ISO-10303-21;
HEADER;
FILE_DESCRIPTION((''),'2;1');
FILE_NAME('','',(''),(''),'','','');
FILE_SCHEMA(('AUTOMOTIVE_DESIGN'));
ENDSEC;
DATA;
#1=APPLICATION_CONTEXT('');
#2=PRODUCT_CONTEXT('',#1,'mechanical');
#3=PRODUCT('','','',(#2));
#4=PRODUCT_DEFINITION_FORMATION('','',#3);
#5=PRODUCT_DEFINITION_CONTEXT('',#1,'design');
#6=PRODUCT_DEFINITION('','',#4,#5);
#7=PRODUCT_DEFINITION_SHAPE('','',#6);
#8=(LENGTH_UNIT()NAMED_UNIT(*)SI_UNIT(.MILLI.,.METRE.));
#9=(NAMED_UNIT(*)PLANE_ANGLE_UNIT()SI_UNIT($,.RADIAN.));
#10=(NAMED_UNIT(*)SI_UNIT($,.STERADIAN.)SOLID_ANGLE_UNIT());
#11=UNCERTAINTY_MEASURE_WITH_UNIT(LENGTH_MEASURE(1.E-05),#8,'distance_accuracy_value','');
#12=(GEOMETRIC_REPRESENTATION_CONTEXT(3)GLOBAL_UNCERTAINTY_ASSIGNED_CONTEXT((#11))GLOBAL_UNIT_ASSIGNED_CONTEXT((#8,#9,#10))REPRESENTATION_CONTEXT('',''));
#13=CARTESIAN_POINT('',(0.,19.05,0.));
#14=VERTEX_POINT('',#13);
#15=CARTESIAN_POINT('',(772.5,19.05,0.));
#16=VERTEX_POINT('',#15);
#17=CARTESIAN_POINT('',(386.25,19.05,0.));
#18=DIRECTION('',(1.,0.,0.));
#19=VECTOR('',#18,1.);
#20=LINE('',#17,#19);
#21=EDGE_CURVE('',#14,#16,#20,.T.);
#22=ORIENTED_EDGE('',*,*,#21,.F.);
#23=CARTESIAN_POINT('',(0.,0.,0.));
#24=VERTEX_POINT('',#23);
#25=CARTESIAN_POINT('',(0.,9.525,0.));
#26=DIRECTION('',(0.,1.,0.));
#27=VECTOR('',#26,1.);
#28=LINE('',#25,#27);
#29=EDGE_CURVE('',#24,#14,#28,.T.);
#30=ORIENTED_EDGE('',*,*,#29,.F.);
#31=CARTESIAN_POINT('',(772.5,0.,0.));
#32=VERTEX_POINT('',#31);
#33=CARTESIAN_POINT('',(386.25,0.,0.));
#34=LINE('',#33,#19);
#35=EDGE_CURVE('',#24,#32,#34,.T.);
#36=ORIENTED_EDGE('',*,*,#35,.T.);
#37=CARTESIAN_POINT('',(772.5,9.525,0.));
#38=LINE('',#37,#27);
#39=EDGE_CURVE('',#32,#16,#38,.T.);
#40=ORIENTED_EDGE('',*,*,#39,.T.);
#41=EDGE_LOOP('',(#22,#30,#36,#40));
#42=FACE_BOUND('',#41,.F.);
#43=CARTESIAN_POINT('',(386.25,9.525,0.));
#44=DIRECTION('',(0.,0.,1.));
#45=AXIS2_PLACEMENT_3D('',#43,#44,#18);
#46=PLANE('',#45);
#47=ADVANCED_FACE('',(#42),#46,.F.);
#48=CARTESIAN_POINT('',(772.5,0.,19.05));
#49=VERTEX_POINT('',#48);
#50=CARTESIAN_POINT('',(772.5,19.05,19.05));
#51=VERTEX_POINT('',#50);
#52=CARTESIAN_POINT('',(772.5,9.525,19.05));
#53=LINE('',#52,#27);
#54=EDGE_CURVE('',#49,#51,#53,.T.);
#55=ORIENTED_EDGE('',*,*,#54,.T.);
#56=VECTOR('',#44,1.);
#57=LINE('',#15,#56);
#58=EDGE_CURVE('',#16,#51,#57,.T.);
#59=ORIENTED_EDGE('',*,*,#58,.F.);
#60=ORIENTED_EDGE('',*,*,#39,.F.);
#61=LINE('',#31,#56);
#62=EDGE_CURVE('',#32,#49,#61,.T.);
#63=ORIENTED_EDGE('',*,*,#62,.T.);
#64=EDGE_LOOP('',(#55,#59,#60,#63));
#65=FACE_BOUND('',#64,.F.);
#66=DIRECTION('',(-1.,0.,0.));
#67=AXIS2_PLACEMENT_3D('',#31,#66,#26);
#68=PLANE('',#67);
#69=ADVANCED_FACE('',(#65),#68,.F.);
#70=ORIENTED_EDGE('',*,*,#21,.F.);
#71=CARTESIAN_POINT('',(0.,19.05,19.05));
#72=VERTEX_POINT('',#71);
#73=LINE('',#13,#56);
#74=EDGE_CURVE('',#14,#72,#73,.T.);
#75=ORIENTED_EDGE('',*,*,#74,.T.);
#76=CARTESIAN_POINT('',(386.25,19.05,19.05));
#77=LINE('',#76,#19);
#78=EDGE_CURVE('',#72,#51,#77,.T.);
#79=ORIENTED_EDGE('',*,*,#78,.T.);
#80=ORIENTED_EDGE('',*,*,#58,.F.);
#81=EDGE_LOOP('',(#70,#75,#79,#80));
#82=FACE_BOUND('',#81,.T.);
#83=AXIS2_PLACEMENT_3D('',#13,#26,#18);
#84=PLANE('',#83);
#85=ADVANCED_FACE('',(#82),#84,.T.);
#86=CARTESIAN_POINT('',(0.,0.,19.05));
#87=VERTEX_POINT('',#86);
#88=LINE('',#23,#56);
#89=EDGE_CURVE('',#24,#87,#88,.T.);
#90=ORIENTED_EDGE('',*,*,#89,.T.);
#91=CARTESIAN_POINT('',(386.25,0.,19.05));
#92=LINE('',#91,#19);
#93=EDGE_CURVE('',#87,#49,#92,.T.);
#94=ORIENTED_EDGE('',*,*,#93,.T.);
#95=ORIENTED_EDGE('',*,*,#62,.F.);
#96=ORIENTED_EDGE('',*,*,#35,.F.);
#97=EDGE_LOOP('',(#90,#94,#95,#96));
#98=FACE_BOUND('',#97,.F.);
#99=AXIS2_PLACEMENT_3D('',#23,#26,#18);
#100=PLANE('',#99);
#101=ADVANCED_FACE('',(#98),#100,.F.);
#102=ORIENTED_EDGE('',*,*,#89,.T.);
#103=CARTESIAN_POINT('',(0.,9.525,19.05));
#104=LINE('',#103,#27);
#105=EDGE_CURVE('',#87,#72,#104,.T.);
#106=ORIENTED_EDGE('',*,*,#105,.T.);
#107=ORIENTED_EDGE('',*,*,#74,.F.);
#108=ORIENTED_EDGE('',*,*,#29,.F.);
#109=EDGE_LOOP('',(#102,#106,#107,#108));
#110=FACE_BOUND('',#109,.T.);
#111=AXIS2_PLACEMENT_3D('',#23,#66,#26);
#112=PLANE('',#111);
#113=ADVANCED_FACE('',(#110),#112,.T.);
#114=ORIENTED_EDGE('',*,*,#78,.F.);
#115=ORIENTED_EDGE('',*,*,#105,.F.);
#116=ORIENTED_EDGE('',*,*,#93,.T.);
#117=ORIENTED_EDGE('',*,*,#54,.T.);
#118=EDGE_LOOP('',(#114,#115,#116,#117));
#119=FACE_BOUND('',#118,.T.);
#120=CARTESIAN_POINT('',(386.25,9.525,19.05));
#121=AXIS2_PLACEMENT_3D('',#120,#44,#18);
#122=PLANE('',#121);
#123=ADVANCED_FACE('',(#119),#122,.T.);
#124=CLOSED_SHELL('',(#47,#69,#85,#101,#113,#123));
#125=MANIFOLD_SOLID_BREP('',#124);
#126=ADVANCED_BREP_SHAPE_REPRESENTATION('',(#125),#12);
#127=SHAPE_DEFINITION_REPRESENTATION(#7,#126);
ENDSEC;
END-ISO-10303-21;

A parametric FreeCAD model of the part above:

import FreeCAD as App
import Part
import Sketcher

doc = App.newDocument("Part")
body = doc.addObject("PartDesign::Body", "Body")

# Sketch on XY plane
sketch1 = body.newObject("Sketcher::SketchObject", "Sketch")
sketch1.AttachmentSupport = (doc.getObject("XY_Plane"), [""])
sketch1.MapMode = "FlatFace"
sketch1.addGeometry(Part.LineSegment(App.Vector(0, 19.05, 0), App.Vector(0, 0, 0)), False)
sketch1.addGeometry(Part.LineSegment(App.Vector(0, 0, 0), App.Vector(772.5, 0, 0)), False)
sketch1.addGeometry(Part.LineSegment(App.Vector(772.5, 0, 0), App.Vector(772.5, 19.05, 0)), False)
sketch1.addGeometry(Part.LineSegment(App.Vector(772.5, 19.05, 0), App.Vector(0, 19.05, 0)), False)
sketch1.addConstraint(Sketcher.Constraint("Coincident", 0, 2, 1, 1))
sketch1.addConstraint(Sketcher.Constraint("Coincident", 1, 2, 2, 1))
sketch1.addConstraint(Sketcher.Constraint("Coincident", 2, 2, 3, 1))
sketch1.addConstraint(Sketcher.Constraint("Coincident", 3, 2, 0, 1))
sketch1.addConstraint(Sketcher.Constraint("Vertical", 0))
sketch1.addConstraint(Sketcher.Constraint("Horizontal", 1))
sketch1.addConstraint(Sketcher.Constraint("Vertical", 2))
sketch1.addConstraint(Sketcher.Constraint("Horizontal", 3))
sketch1.addConstraint(Sketcher.Constraint("Coincident", 0, 2, -1, 1))
sketch1.addConstraint(Sketcher.Constraint("DistanceX", 1, 1, 1, 2, 772.5))
sketch1.addConstraint(Sketcher.Constraint("DistanceY", 0, 2, 0, 1, 19.05))
pad1 = body.newObject("PartDesign::Pad", "Pad")
pad1.Profile = sketch1
pad1.Length = 19.05

doc.recompute()
